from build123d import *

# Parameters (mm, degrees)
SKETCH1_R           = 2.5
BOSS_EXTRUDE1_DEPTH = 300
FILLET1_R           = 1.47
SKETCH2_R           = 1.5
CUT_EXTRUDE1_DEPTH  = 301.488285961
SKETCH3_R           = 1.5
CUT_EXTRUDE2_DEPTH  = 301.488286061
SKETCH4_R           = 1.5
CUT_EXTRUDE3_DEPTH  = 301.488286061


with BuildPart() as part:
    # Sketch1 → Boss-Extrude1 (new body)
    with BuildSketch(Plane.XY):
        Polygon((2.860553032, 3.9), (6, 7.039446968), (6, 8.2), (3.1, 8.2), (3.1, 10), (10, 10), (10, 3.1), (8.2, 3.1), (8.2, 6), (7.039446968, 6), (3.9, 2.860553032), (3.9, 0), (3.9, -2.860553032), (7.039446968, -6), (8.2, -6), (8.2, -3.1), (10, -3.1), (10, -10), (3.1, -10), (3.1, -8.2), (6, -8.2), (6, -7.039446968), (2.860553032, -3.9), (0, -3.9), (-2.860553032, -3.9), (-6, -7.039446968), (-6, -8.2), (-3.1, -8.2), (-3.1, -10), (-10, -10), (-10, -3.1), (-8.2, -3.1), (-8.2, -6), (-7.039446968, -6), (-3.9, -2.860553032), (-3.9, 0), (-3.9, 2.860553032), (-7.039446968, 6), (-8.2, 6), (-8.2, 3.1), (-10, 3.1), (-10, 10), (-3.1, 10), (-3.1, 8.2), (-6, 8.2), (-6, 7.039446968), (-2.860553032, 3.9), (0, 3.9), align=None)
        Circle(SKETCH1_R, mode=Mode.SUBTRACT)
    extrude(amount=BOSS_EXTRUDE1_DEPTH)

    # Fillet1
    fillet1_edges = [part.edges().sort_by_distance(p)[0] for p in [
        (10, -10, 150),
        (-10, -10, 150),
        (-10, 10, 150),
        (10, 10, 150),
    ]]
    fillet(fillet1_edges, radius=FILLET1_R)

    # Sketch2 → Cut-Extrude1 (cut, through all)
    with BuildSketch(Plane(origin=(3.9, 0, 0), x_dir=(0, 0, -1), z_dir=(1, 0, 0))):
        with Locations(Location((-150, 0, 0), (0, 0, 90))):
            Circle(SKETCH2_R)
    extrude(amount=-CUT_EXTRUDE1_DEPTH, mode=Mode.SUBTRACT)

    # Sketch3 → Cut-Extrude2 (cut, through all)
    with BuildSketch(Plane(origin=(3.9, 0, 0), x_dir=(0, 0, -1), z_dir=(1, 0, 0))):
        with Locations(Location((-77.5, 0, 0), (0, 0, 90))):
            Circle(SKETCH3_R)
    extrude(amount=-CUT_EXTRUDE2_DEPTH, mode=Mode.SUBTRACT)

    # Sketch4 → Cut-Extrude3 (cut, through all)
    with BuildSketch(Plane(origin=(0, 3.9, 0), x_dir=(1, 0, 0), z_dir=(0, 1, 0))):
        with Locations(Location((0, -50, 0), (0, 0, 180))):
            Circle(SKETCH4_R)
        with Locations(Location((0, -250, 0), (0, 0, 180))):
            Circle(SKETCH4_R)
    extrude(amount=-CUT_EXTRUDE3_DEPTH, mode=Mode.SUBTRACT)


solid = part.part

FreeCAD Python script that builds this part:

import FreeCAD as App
import Part
import Sketcher


def edges_at(feature, points):
    """Names of the edges that pass closest to the given points."""
    edges = feature.Shape.Edges
    near = lambda p: min(range(len(edges)), key=lambda i: edges[i].distToShape(Part.Vertex(*p))[0])
    return sorted({f"Edge{near(p) + 1}" for p in points})


def add_polygon(sketch, points):
    """Adds a closed chain of lines whose ends are joined by coincident constraints."""
    first, n = sketch.GeometryCount, len(points)
    for a, b in zip(points, points[1:] + points[:1]):
        sketch.addGeometry(Part.LineSegment(App.Vector(*a, 0), App.Vector(*b, 0)), False)
    for i in range(n):
        sketch.addConstraint(Sketcher.Constraint("Coincident", first + i, 2, first + (i + 1) % n, 1))

doc = App.newDocument("Part")
body = doc.addObject("PartDesign::Body", "Body")

# Sketch on XY plane
sketch1 = body.newObject("Sketcher::SketchObject", "Sketch")
sketch1.AttachmentSupport = (doc.getObject("XY_Plane"), [""])
sketch1.MapMode = "FlatFace"
add_polygon(sketch1, [(6, 7), (2.9, 3.9), (-2.9, 3.9), (-6, 7), (-6, 8.2), (-3.1, 8.2), (-3.1, 10), (-10, 10), (-10, 3.1), (-8.2, 3.1), (-8.2, 6), (-7, 6), (-3.9, 2.9), (-3.9, -2.9), (-7, -6), (-8.2, -6), (-8.2, -3.1), (-10, -3.1), (-10, -10), (-3.1, -10), (-3.1, -8.2), (-6, -8.2), (-6, -7), (-2.9, -3.9), (2.9, -3.9), (6, -7), (6, -8.2), (3.1, -8.2), (3.1, -10), (10, -10), (10, -3.1), (8.2, -3.1), (8.2, -6), (7, -6), (3.9, -2.9), (3.9, 2.9), (7, 6), (8.2, 6), (8.2, 3.1), (10, 3.1), (10, 10), (3.1, 10), (3.1, 8.2), (6, 8.2)])  # lines 0-43
sketch1.addGeometry(Part.Circle(App.Vector(0, 0, 0), App.Vector(0, 0, 1), 2.5), False)  # 44
sketch1.addConstraint([
    Sketcher.Constraint("Horizontal", 1),
    Sketcher.Constraint("Vertical", 3),
    Sketcher.Constraint("Horizontal", 4),
    Sketcher.Constraint("Vertical", 5),
    Sketcher.Constraint("Horizontal", 6),
    Sketcher.Constraint("Vertical", 7),
    Sketcher.Constraint("Horizontal", 8),
    Sketcher.Constraint("Vertical", 9),
    Sketcher.Constraint("Horizontal", 10),
    Sketcher.Constraint("Vertical", 12),
    Sketcher.Constraint("Horizontal", 14),
    Sketcher.Constraint("Vertical", 15),
    Sketcher.Constraint("Horizontal", 16),
    Sketcher.Constraint("Vertical", 17),
    Sketcher.Constraint("Horizontal", 18),
    Sketcher.Constraint("Vertical", 19),
    Sketcher.Constraint("Horizontal", 20),
    Sketcher.Constraint("Vertical", 21),
    Sketcher.Constraint("Horizontal", 23),
    Sketcher.Constraint("Vertical", 25),
    Sketcher.Constraint("Horizontal", 26),
    Sketcher.Constraint("Vertical", 27),
    Sketcher.Constraint("Horizontal", 28),
    Sketcher.Constraint("Vertical", 29),
    Sketcher.Constraint("Horizontal", 30),
    Sketcher.Constraint("Vertical", 31),
    Sketcher.Constraint("Horizontal", 32),
    Sketcher.Constraint("Vertical", 34),
    Sketcher.Constraint("Horizontal", 36),
    Sketcher.Constraint("Vertical", 37),
    Sketcher.Constraint("Horizontal", 38),
    Sketcher.Constraint("Vertical", 39),
    Sketcher.Constraint("Horizontal", 40),
    Sketcher.Constraint("Vertical", 41),
    Sketcher.Constraint("Horizontal", 42),
    Sketcher.Constraint("Vertical", 43),
    Sketcher.Constraint("Coincident", 44, 3, -1, 1),
    Sketcher.Constraint("Symmetric", 0, 2, 22, 2, -1, 1),
    Sketcher.Constraint("Symmetric", 2, 2, 24, 2, -1, 1),
    Sketcher.Constraint("Symmetric", 4, 2, 26, 2, -1, 1),
    Sketcher.Constraint("Symmetric", 6, 2, 28, 2, -1, 1),
    Sketcher.Constraint("Symmetric", 8, 2, 30, 2, -1, 1),
    Sketcher.Constraint("Symmetric", 10, 2, 32, 2, -1, 1),
    Sketcher.Constraint("Symmetric", 11, 2, 33, 2, -1, 1),
    Sketcher.Constraint("Symmetric", 13, 2, 35, 2, -1, 1),
    Sketcher.Constraint("Symmetric", 15, 2, 37, 2, -1, 1),
    Sketcher.Constraint("Symmetric", 17, 2, 39, 2, -1, 1),
    Sketcher.Constraint("Symmetric", 19, 2, 41, 2, -1, 1),
    Sketcher.Constraint("Symmetric", 21, 2, 43, 2, -1, 1),
    Sketcher.Constraint("Symmetric", 21, 2, 24, 2, -2),
    Sketcher.Constraint("Symmetric", 19, 2, 26, 2, -2),
    Sketcher.Constraint("Symmetric", 17, 2, 28, 2, -2),
    Sketcher.Constraint("Symmetric", 15, 2, 30, 2, -2),
    Sketcher.Constraint("Symmetric", 13, 2, 32, 2, -2),
    Sketcher.Constraint("Perpendicular", 0, 2),
    Sketcher.Constraint("Parallel", 2, 11),
    Sketcher.Constraint("Perpendicular", 11, 13),
    Sketcher.Constraint("Perpendicular", 22, 24),
    Sketcher.Constraint("Perpendicular", 33, 35),
    Sketcher.Constraint("Horizontal", 12, 2, 33, 2),
    Sketcher.Constraint("Equal", 36, 3),
    Sketcher.Constraint("Equal", 38, 5),
    Sketcher.Constraint("Equal", 40, 7),
    Sketcher.Constraint("Equal", 42, 9),
    Sketcher.Constraint("Equal", 23, 12),
    Sketcher.Constraint("Equal", 2, 11),
    Sketcher.Constraint("Diameter", 44, 5.0),
    Sketcher.Constraint("DistanceX", 4, 1, 4, 2, 2.9),
    Sketcher.Constraint("DistanceX", 6, 2, 6, 1, 6.9),
    Sketcher.Constraint("DistanceX", 8, 1, 8, 2, 1.8),
    Sketcher.Constraint("DistanceX", 2, 2, -1, 1, 6.0),
    Sketcher.Constraint("DistanceY", -1, 1, 0, 2, 3.9),
    Sketcher.Constraint("Distance", 0, 4.439848),
])
pad1 = body.newObject("PartDesign::Pad", "Pad")
pad1.Profile = sketch1
pad1.Length = 300
doc.recompute()

fillet = body.newObject("PartDesign::Fillet", "Fillet")
fillet.Base = (pad1, edges_at(pad1, [
    (10, -10, 150),
    (-10, -10, 150),
    (-10, 10, 150),
    (10, 10, 150),
]))
fillet.Radius = 1.47

# Sketch on YZ plane
sketch2 = body.newObject("Sketcher::SketchObject", "Sketch001")
sketch2.AttachmentSupport = (doc.getObject("YZ_Plane"), [""])
sketch2.MapMode = "FlatFace"
sketch2.AttachmentOffset = App.Placement(App.Vector(0, 0, 3.9), App.Rotation())
sketch2.addGeometry(Part.Circle(App.Vector(0, 150, 0), App.Vector(0, 0, 1), 1.5), False)
sketch2.addConstraint([
    Sketcher.Constraint("PointOnObject", 0, 3, -2),
    Sketcher.Constraint("Diameter", 0, 3.0),
    Sketcher.Constraint("DistanceY", -1, 1, 0, 3, 150.0),
])
pocket1 = body.newObject("PartDesign::Pocket", "Pocket")
pocket1.Profile = sketch2
pocket1.Type = "ThroughAll"

# Sketch on YZ plane
sketch3 = body.newObject("Sketcher::SketchObject", "Sketch002")
sketch3.AttachmentSupport = (doc.getObject("YZ_Plane"), [""])
sketch3.MapMode = "FlatFace"
sketch3.AttachmentOffset = App.Placement(App.Vector(0, 0, 3.9), App.Rotation())
sketch3.addGeometry(Part.Circle(App.Vector(0, 77.5, 0), App.Vector(0, 0, 1), 1.5), False)
sketch3.addConstraint([
    Sketcher.Constraint("PointOnObject", 0, 3, -2),
    Sketcher.Constraint("Diameter", 0, 3.0),
    Sketcher.Constraint("DistanceY", -1, 1, 0, 3, 77.5),
])
pocket2 = body.newObject("PartDesign::Pocket", "Pocket001")
pocket2.Profile = sketch3
pocket2.Type = "ThroughAll"

# Sketch on XZ plane
sketch4 = body.newObject("Sketcher::SketchObject", "Sketch003")
sketch4.AttachmentSupport = (doc.getObject("XZ_Plane"), [""])
sketch4.MapMode = "FlatFace"
sketch4.AttachmentOffset = App.Placement(App.Vector(0, 0, -3.9), App.Rotation())
sketch4.addGeometry([
    Part.Circle(App.Vector(0, 50, 0), App.Vector(0, 0, 1), 1.5),
    Part.Circle(App.Vector(0, 250, 0), App.Vector(0, 0, 1), 1.5),
], False)
sketch4.addConstraint([
    Sketcher.Constraint("Equal", 0, 1),
    Sketcher.Constraint("PointOnObject", 0, 3, -2),
    Sketcher.Constraint("PointOnObject", 1, 3, -2),
    Sketcher.Constraint("Diameter", 0, 3.0),
    Sketcher.Constraint("DistanceY", -1, 1, 0, 3, 50.0),
    Sketcher.Constraint("DistanceY", -1, 1, 1, 3, 250.0),
])
pocket3 = body.newObject("PartDesign::Pocket", "Pocket002")
pocket3.Profile = sketch4
pocket3.Type = "ThroughAll"
pocket3.Reversed = True

doc.recompute()
